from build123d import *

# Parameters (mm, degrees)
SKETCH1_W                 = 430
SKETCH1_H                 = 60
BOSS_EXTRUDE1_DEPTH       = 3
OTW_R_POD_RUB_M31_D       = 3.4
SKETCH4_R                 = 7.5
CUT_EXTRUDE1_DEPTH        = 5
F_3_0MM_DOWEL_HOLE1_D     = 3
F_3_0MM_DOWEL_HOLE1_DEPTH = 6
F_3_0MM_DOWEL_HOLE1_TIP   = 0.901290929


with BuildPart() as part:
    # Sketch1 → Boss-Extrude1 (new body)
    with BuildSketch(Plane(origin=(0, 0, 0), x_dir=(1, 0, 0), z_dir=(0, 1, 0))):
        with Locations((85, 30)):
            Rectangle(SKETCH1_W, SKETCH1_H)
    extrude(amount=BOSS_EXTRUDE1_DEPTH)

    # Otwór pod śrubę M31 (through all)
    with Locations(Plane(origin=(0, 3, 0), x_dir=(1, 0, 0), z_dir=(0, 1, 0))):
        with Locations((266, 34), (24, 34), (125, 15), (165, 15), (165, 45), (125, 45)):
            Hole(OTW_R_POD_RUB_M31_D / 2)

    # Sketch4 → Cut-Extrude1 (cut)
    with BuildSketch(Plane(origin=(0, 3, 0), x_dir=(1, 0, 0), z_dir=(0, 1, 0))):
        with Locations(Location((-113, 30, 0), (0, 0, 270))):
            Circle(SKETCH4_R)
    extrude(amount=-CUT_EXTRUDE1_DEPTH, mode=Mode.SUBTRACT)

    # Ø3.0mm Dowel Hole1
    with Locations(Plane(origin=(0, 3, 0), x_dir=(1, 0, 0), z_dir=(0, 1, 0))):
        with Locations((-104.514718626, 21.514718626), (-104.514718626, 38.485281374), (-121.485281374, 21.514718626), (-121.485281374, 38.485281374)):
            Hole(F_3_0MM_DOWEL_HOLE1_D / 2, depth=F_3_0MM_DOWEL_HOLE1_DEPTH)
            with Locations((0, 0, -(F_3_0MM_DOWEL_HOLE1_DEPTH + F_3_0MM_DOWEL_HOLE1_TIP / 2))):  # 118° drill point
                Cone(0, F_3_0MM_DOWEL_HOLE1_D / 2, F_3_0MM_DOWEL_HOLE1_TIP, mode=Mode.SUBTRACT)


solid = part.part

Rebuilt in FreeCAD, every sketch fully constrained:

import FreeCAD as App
import Part
import Sketcher
from FreeCAD import Vector


def add_polygon(sketch, points):
    """Adds a closed chain of lines whose ends are joined by coincident constraints."""
    first, n = sketch.GeometryCount, len(points)
    for a, b in zip(points, points[1:] + points[:1]):
        sketch.addGeometry(Part.LineSegment(App.Vector(*a, 0), App.Vector(*b, 0)), False)
    for i in range(n):
        sketch.addConstraint(Sketcher.Constraint("Coincident", first + i, 2, first + (i + 1) % n, 1))

doc = App.newDocument("Part")
body = doc.addObject("PartDesign::Body", "Body")

sketch1 = doc.addObject("Sketcher::SketchObject", "Sketch")
body.addObject(sketch1)
sketch1.AttachmentSupport = (doc.XZ_Plane, [""])
sketch1.MapMode = "FlatFace"
add_polygon(sketch1, [(-130, -60), (-130, 0), (300, 0), (300, -60)])
sketch1.addConstraint([
    Sketcher.Constraint("Vertical", 0),
    Sketcher.Constraint("Horizontal", 1),
    Sketcher.Constraint("Vertical", 2),
    Sketcher.Constraint("Horizontal", 3),
    Sketcher.Constraint("PointOnObject", 0, 2, -1),
    Sketcher.Constraint("DistanceX", 1, 1, 1, 2, 430.0),
    Sketcher.Constraint("DistanceY", 0, 1, 0, 2, 60.0),
    Sketcher.Constraint("DistanceX", 0, 2, -1, 1, 130.0),
])
pad1 = doc.addObject("PartDesign::Pad", "Pad")
body.addObject(pad1)
pad1.Profile = sketch1
pad1.Length = 3
pad1.Reversed = True

sketch2 = doc.addObject("Sketcher::SketchObject", "Sketch001")
body.addObject(sketch2)
sketch2.AttachmentSupport = (doc.XZ_Plane, [""])
sketch2.MapMode = "FlatFace"
sketch2.AttachmentOffset = App.Placement(Vector(0, 0, -3), App.Rotation())
sketch2.addGeometry([
    Part.Circle(Vector(266, -34, 0), Vector(0, 0, 1), 1.7),
    Part.Circle(Vector(24, -34, 0), Vector(0, 0, 1), 1.7),
    Part.Circle(Vector(125, -15, 0), Vector(0, 0, 1), 1.7),
    Part.Circle(Vector(165, -15, 0), Vector(0, 0, 1), 1.7),
    Part.Circle(Vector(165, -45, 0), Vector(0, 0, 1), 1.7),
    Part.Circle(Vector(125, -45, 0), Vector(0, 0, 1), 1.7),
], False)
sketch2.addConstraint([
    Sketcher.Constraint("Equal", 0, 1),
    Sketcher.Constraint("Equal", 1, 2),
    Sketcher.Constraint("Equal", 2, 3),
    Sketcher.Constraint("Equal", 3, 4),
    Sketcher.Constraint("Equal", 4, 5),
    Sketcher.Constraint("Horizontal", 0, 3, 1, 3),
    Sketcher.Constraint("Horizontal", 2, 3, 3, 3),
    Sketcher.Constraint("Horizontal", 4, 3, 5, 3),
    Sketcher.Constraint("Vertical", 3, 3, 4, 3),
    Sketcher.Constraint("Vertical", 2, 3, 5, 3),
    Sketcher.Constraint("Diameter", 0, 3.4),
    Sketcher.Constraint("DistanceX", -1, 1, 0, 3, 266.0),
    Sketcher.Constraint("DistanceY", 0, 3, -1, 1, 34.0),
    Sketcher.Constraint("DistanceX", -1, 1, 1, 3, 24.0),
    Sketcher.Constraint("DistanceX", -1, 1, 2, 3, 125.0),
    Sketcher.Constraint("DistanceY", 2, 3, -1, 1, 15.0),
    Sketcher.Constraint("DistanceX", -1, 1, 3, 3, 165.0),
    Sketcher.Constraint("DistanceY", 4, 3, -1, 1, 45.0),
])
doc.recompute()
hole = doc.addObject("PartDesign::Hole", "Hole")
body.addObject(hole)
hole.Profile = sketch2
hole.ThreadType = "None"
hole.Diameter = 3.4
hole.DepthType = "ThroughAll"
hole.Reversed = True

sketch3 = doc.addObject("Sketcher::SketchObject", "Sketch002")
body.addObject(sketch3)
sketch3.AttachmentSupport = (doc.XZ_Plane, [""])
sketch3.MapMode = "FlatFace"
sketch3.AttachmentOffset = App.Placement(Vector(0, 0, -3), App.Rotation())
sketch3.addGeometry(Part.Circle(Vector(-113, -30, 0), Vector(0, 0, 1), 8), False)
sketch3.addConstraint([
    Sketcher.Constraint("Diameter", 0, 15.0),
    Sketcher.Constraint("DistanceX", 0, 3, -1, 1, 113.0),
    Sketcher.Constraint("DistanceY", 0, 3, -1, 1, 30.0),
])
pocket1 = doc.addObject("PartDesign::Pocket", "Pocket")
body.addObject(pocket1)
pocket1.Profile = sketch3
pocket1.Length = 5
pocket1.Reversed = True

sketch4 = doc.addObject("Sketcher::SketchObject", "Sketch003")
body.addObject(sketch4)
sketch4.AttachmentSupport = (doc.XZ_Plane, [""])
sketch4.MapMode = "FlatFace"
sketch4.AttachmentOffset = App.Placement(Vector(0, 0, -3), App.Rotation())
sketch4.addGeometry([
    Part.Circle(Vector(-104.5, -21.5, 0), Vector(0, 0, 1), 1.5),
    Part.Circle(Vector(-104.5, -38.5, 0), Vector(0, 0, 1), 1.5),
    Part.Circle(Vector(-121.5, -21.5, 0), Vector(0, 0, 1), 1.5),
    Part.Circle(Vector(-121.5, -38.5, 0), Vector(0, 0, 1), 1.5),
], False)
sketch4.addConstraint([
    Sketcher.Constraint("Equal", 0, 1),
    Sketcher.Constraint("Equal", 1, 2),
    Sketcher.Constraint("Equal", 2, 3),
    Sketcher.Constraint("Horizontal", 0, 3, 2, 3),
    Sketcher.Constraint("Horizontal", 1, 3, 3, 3),
    Sketcher.Constraint("Vertical", 0, 3, 1, 3),
    Sketcher.Constraint("Vertical", 2, 3, 3, 3),
    Sketcher.Constraint("Diameter", 0, 3.0),
    Sketcher.Constraint("DistanceX", 0, 3, -1, 1, 104.514719),
    Sketcher.Constraint("DistanceY", 0, 3, -1, 1, 21.514719),
    Sketcher.Constraint("DistanceY", 1, 3, -1, 1, 38.485281),
    Sketcher.Constraint("DistanceX", 2, 3, -1, 1, 121.485281),
])
doc.recompute()
hole2 = doc.addObject("PartDesign::Hole", "Hole001")
body.addObject(hole2)
hole2.Profile = sketch4
hole2.ThreadType = "None"
hole2.Diameter = 3
hole2.DepthType = "Dimension"
hole2.Depth = 6
hole2.DrillPoint = "Angled"
hole2.DrillPointAngle = 118
hole2.Reversed = True

doc.recompute()
